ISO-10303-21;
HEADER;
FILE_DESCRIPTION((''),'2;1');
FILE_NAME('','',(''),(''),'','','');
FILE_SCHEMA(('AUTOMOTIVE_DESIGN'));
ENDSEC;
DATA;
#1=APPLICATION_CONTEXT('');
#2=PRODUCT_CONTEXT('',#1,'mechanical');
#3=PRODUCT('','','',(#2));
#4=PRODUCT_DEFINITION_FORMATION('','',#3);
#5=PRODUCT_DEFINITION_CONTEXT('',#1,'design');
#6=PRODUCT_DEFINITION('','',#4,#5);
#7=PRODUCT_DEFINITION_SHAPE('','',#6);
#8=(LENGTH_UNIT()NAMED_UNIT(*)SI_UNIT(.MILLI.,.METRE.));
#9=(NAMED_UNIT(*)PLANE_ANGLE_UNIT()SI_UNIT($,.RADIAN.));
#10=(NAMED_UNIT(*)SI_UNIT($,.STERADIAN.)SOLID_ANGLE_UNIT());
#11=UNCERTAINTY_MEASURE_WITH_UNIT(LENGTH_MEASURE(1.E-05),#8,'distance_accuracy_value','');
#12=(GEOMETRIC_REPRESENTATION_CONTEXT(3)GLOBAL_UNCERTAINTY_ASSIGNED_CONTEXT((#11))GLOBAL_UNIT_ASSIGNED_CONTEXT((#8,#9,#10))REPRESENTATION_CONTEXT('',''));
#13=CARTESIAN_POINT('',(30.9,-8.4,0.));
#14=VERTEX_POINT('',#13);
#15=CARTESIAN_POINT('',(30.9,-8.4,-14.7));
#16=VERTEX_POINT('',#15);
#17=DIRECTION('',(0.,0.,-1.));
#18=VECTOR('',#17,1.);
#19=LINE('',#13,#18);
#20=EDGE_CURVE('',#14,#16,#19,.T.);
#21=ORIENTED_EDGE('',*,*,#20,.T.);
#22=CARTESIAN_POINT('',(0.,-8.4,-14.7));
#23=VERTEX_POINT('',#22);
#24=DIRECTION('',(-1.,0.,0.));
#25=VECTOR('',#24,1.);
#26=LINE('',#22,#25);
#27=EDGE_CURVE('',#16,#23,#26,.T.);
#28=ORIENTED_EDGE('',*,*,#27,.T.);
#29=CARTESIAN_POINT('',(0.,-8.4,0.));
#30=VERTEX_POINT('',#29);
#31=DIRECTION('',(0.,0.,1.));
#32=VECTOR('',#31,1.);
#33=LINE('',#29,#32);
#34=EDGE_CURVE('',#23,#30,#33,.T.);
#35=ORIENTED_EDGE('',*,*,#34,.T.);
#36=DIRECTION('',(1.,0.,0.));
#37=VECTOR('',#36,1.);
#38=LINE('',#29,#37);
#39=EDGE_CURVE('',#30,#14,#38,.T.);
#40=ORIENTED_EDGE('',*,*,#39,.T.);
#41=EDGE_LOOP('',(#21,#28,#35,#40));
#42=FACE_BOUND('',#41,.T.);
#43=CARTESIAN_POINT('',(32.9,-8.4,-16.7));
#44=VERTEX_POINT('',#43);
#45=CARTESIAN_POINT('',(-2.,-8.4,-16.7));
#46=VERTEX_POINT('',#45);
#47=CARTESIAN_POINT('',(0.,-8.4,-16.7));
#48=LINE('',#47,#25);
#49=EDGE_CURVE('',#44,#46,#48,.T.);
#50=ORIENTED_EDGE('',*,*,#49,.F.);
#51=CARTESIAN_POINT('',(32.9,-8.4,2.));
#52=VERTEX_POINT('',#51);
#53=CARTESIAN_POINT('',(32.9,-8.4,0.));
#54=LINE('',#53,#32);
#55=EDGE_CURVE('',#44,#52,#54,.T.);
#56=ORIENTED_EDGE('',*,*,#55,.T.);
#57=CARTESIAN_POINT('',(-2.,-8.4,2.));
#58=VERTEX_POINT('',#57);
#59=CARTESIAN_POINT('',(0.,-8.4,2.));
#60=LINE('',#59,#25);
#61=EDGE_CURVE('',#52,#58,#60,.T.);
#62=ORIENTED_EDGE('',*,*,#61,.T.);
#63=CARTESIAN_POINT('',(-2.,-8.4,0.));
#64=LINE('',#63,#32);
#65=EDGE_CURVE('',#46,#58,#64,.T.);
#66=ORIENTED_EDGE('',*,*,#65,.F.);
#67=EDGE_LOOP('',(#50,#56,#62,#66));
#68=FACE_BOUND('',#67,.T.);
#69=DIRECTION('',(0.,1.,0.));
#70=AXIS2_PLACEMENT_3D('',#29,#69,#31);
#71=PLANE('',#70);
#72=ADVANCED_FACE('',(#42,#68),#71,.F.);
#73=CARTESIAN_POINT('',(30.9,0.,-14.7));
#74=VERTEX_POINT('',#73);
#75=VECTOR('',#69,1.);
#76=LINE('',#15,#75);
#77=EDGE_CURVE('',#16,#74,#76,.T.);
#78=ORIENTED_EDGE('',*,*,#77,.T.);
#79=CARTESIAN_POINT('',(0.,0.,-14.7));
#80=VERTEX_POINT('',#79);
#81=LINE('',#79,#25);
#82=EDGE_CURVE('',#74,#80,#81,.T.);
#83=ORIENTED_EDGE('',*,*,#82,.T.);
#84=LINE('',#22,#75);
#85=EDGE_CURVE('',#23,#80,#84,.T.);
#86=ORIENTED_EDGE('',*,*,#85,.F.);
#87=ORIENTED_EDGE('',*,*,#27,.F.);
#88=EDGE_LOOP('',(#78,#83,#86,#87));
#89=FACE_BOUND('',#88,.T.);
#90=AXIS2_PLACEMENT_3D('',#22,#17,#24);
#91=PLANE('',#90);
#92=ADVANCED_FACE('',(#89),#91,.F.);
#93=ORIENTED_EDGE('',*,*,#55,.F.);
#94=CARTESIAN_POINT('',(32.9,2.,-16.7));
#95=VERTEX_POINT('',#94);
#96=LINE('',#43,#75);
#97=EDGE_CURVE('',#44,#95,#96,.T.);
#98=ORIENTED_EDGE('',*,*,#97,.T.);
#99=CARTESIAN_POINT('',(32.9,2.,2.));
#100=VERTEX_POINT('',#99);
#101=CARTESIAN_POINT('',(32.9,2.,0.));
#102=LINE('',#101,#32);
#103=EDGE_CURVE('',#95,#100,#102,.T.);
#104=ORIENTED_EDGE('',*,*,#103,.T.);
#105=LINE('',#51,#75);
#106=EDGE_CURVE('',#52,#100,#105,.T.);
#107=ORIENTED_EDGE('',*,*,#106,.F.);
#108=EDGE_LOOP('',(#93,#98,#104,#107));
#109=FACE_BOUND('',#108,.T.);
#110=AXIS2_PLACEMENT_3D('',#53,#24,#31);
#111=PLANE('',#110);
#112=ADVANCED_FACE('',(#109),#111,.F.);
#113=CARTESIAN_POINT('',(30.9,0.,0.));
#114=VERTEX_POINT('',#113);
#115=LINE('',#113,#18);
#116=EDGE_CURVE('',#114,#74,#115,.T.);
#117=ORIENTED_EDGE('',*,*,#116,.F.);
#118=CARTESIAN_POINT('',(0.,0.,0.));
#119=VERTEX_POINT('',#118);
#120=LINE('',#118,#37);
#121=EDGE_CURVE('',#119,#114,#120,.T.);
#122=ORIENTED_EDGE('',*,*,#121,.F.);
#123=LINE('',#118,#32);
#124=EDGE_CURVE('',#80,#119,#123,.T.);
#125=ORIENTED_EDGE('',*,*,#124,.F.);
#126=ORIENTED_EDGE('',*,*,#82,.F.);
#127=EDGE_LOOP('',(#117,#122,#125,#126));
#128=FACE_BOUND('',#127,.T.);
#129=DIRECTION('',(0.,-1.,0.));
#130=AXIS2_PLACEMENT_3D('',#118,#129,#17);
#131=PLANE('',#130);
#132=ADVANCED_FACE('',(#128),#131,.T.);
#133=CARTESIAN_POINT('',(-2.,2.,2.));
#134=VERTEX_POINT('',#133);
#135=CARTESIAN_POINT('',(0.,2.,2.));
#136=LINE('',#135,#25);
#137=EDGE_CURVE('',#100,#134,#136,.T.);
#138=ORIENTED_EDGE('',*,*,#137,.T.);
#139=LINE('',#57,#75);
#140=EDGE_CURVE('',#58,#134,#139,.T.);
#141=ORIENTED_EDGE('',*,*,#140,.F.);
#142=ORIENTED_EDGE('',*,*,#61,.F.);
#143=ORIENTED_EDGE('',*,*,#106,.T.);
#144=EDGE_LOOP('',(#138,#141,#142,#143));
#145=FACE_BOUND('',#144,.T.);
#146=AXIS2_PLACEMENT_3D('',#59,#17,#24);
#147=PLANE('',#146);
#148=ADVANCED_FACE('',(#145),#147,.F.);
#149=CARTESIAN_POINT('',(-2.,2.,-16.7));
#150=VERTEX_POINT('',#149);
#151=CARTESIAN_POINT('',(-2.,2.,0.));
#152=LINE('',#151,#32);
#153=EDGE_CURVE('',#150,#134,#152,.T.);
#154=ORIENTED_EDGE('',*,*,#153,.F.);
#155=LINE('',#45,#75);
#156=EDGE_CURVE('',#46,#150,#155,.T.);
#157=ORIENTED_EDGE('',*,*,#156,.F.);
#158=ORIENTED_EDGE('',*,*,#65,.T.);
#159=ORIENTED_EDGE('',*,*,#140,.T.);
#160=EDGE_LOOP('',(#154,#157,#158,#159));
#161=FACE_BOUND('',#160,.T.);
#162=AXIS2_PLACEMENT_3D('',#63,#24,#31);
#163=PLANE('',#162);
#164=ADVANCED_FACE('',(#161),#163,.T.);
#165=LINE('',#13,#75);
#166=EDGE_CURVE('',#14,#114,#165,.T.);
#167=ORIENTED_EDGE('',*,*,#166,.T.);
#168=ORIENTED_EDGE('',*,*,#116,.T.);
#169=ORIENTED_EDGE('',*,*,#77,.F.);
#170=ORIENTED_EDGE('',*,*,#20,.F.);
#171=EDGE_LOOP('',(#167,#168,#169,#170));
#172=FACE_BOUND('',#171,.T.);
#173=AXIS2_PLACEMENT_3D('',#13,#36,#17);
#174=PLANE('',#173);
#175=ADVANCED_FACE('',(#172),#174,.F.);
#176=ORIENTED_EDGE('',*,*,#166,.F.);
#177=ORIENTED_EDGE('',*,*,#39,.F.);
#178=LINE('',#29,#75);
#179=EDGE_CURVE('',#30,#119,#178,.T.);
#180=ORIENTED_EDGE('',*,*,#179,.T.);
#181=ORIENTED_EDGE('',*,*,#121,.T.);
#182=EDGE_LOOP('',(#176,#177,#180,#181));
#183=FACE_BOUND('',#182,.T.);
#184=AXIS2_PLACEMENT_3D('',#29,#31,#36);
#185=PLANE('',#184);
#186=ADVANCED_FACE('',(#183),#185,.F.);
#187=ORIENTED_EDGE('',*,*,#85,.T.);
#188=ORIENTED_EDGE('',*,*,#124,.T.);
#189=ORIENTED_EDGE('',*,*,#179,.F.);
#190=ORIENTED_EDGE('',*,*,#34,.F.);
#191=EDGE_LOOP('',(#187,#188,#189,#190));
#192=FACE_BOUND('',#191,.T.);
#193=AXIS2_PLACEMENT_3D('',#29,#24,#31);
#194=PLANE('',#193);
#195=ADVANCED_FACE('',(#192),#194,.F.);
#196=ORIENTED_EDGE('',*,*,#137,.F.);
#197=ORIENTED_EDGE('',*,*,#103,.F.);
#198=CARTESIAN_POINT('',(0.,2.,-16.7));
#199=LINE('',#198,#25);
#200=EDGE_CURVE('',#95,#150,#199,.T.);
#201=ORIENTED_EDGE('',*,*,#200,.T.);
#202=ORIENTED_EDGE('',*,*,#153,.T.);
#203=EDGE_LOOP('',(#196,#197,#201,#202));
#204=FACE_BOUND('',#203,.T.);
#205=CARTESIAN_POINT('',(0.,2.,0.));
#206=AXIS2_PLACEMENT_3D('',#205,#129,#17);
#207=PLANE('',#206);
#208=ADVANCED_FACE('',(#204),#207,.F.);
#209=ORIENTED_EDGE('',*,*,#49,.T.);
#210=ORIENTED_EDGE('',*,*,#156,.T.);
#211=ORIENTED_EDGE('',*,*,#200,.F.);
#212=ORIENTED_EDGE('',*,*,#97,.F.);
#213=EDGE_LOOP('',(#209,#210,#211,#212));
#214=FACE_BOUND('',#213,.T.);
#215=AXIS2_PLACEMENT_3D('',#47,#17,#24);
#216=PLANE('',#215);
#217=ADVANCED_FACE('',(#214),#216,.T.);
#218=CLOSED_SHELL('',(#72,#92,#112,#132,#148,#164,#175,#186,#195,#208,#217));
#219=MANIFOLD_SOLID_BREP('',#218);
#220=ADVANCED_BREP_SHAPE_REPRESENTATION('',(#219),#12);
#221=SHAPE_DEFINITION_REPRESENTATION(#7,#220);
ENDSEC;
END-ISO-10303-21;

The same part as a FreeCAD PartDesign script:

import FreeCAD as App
import Part
import Sketcher
from FreeCAD import Vector


def add_polygon(sketch, points):
    """Adds a closed chain of lines whose ends are joined by coincident constraints."""
    first, n = sketch.GeometryCount, len(points)
    for a, b in zip(points, points[1:] + points[:1]):
        sketch.addGeometry(Part.LineSegment(App.Vector(*a, 0), App.Vector(*b, 0)), False)
    for i in range(n):
        sketch.addConstraint(Sketcher.Constraint("Coincident", first + i, 2, first + (i + 1) % n, 1))

doc = App.newDocument("Part")
params = doc.addObject("Spreadsheet::Sheet", "Params")
for row, (alias, value) in enumerate([
    ("sketch1_width", "30.9 mm"),
    ("sketch1_height", "14.7 mm"),
    ("pad1_length", "2 mm"),
    ("sketch2_width", "34.9 mm"),
    ("sketch2_width2", "30.9 mm"),
    ("sketch2_height", "18.7 mm"),
    ("sketch2_height2", "14.7 mm"),
    ("pad2_length", "10.4 mm"),
], start=1):
    params.set(f"A{row}", alias)
    params.set(f"B{row}", "=" + value)
    params.setAlias(f"B{row}", alias)

body = doc.addObject("PartDesign::Body", "Body")

sketch1 = body.newObject("Sketcher::SketchObject", "Sketch")
sketch1.AttachmentSupport = (doc.getObject("XZ_Plane"), [""])
sketch1.MapMode = "FlatFace"
add_polygon(sketch1, [(0, -15), (0, 0), (31, 0), (31, -15)])
sketch1.addConstraint(Sketcher.Constraint("Vertical", 0))
sketch1.addConstraint(Sketcher.Constraint("Horizontal", 1))
sketch1.addConstraint(Sketcher.Constraint("Vertical", 2))
sketch1.addConstraint(Sketcher.Constraint("Horizontal", 3))
sketch1.addConstraint(Sketcher.Constraint("Coincident", 0, 2, -1, 1))
sketch1.addConstraint(Sketcher.Constraint("DistanceX", 1, 1, 1, 2, 30.9))
sketch1.addConstraint(Sketcher.Constraint("DistanceY", 0, 1, 0, 2, 14.7))
sketch1.setExpression("Constraints[9]", "Params.sketch1_width")
sketch1.setExpression("Constraints[10]", "Params.sketch1_height")
pad1 = body.newObject("PartDesign::Pad", "Pad")
pad1.Profile = sketch1
pad1.setExpression("Length", "Params.pad1_length")
pad1.Reversed = True

sketch2 = body.newObject("Sketcher::SketchObject", "Sketch001")
sketch2.AttachmentSupport = (doc.getObject("XZ_Plane"), [""])
sketch2.MapMode = "FlatFace"
sketch2.AttachmentOffset = App.Placement(Vector(0, 0, -2), App.Rotation())
add_polygon(sketch2, [(-2, -17), (-2, 2), (33, 2), (33, -17)])
add_polygon(sketch2, [(31, 0), (0, 0), (0, -15), (31, -15)])
sketch2.addConstraint(Sketcher.Constraint("Vertical", 0))
sketch2.addConstraint(Sketcher.Constraint("Horizontal", 1))
sketch2.addConstraint(Sketcher.Constraint("Vertical", 2))
sketch2.addConstraint(Sketcher.Constraint("Horizontal", 3))
sketch2.addConstraint(Sketcher.Constraint("Horizontal", 4))
sketch2.addConstraint(Sketcher.Constraint("Vertical", 5))
sketch2.addConstraint(Sketcher.Constraint("Horizontal", 6))
sketch2.addConstraint(Sketcher.Constraint("Vertical", 7))
sketch2.addConstraint(Sketcher.Constraint("Coincident", 4, 2, -1, 1))
sketch2.addConstraint(Sketcher.Constraint("DistanceX", 1, 1, 1, 2, 34.9))
sketch2.addConstraint(Sketcher.Constraint("DistanceX", 4, 2, 4, 1, 30.9))
sketch2.addConstraint(Sketcher.Constraint("DistanceY", 0, 1, 0, 2, 18.7))
sketch2.addConstraint(Sketcher.Constraint("DistanceY", 5, 2, 5, 1, 14.7))
sketch2.addConstraint(Sketcher.Constraint("DistanceX", 0, 2, -1, 1, 2.0))
sketch2.addConstraint(Sketcher.Constraint("DistanceY", -1, 1, 0, 2, 2.0))
sketch2.setExpression("Constraints[17]", "Params.sketch2_width")
sketch2.setExpression("Constraints[18]", "Params.sketch2_width2")
sketch2.setExpression("Constraints[19]", "Params.sketch2_height")
sketch2.setExpression("Constraints[20]", "Params.sketch2_height2")
pad2 = body.newObject("PartDesign::Pad", "Pad001")
pad2.Profile = sketch2
pad2.setExpression("Length", "Params.pad2_length")

doc.recompute()
